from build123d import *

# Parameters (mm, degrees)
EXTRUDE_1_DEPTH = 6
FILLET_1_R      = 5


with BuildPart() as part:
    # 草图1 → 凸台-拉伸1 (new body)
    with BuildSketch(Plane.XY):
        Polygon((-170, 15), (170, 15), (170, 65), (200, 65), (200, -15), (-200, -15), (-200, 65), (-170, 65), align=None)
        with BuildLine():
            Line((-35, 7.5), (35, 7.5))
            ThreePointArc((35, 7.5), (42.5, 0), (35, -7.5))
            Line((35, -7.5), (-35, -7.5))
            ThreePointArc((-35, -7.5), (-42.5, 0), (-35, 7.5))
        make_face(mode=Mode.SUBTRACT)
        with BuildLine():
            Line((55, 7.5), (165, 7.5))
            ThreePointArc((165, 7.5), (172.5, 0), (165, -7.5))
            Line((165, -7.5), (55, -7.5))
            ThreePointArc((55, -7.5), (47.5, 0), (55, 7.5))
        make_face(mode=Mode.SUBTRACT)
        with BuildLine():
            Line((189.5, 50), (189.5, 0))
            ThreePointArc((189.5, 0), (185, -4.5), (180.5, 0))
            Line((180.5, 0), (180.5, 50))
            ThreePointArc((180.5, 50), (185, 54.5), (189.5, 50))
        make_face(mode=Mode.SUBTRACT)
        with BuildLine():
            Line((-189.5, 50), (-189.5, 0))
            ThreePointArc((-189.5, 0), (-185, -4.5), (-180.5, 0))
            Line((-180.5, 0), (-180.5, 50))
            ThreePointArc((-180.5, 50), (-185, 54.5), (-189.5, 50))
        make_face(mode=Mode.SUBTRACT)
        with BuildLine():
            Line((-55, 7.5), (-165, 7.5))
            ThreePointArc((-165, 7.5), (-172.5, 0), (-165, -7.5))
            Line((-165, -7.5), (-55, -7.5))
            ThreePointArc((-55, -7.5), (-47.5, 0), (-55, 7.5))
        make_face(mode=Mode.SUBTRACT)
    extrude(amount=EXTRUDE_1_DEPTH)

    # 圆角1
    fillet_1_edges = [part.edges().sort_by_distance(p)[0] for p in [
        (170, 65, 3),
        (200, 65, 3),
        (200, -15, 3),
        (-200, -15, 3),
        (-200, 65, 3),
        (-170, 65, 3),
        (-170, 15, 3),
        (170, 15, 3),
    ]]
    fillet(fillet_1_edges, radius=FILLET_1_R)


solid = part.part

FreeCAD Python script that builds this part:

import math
import FreeCAD as App
import Part
import Sketcher
from FreeCAD import Vector


def edges_at(feature, points):
    """Names of the edges that pass closest to the given points."""
    edges = feature.Shape.Edges
    near = lambda p: min(range(len(edges)), key=lambda i: edges[i].distToShape(Part.Vertex(*p))[0])
    return sorted({f"Edge{near(p) + 1}" for p in points})

doc = App.newDocument("Part")
body = doc.addObject("PartDesign::Body", "Body")

# Sketch on XY plane
sketch1 = body.newObject("Sketcher::SketchObject", "Sketch")
sketch1.AttachmentSupport = (doc.getObject("XY_Plane"), [""])
sketch1.MapMode = "FlatFace"
sketch1.addGeometry([
    Part.LineSegment(Vector(170, 15, 0), Vector(-170, 15, 0)),  # 0
    Part.LineSegment(Vector(-170, 15, 0), Vector(-170, 65, 0)),  # 1
    Part.LineSegment(Vector(-170, 65, 0), Vector(-200, 65, 0)),  # 2
    Part.LineSegment(Vector(-200, 65, 0), Vector(-200, -15, 0)),  # 3
    Part.LineSegment(Vector(-200, -15, 0), Vector(200, -15, 0)),  # 4
    Part.LineSegment(Vector(200, -15, 0), Vector(200, 65, 0)),  # 5
    Part.LineSegment(Vector(200, 65, 0), Vector(170, 65, 0)),  # 6
    Part.LineSegment(Vector(170, 65, 0), Vector(170, 15, 0)),  # 7
    Part.LineSegment(Vector(55, 7.5, 0), Vector(165, 7.5, 0)),  # 8
    Part.ArcOfCircle(Part.Circle(Vector(165, 0, 0), Vector(0, 0, 1), 7.5), math.radians(-90), math.radians(90)),  # 9
    Part.LineSegment(Vector(165, -7.5, 0), Vector(55, -7.5, 0)),  # 10
    Part.ArcOfCircle(Part.Circle(Vector(55, 0, 0), Vector(0, 0, 1), 7.5), math.radians(90), math.radians(270)),  # 11
    Part.LineSegment(Vector(-35, 7.5, 0), Vector(35, 7.5, 0)),  # 12
    Part.ArcOfCircle(Part.Circle(Vector(35, 0, 0), Vector(0, 0, 1), 7.5), math.radians(-90), math.radians(90)),  # 13
    Part.LineSegment(Vector(35, -7.5, 0), Vector(-35, -7.5, 0)),  # 14
    Part.ArcOfCircle(Part.Circle(Vector(-35, 0, 0), Vector(0, 0, 1), 7.5), math.radians(90), math.radians(270)),  # 15
    Part.ArcOfCircle(Part.Circle(Vector(-55, 0, 0), Vector(0, 0, 1), 7.5), math.radians(-90), math.radians(90)),  # 16
    Part.LineSegment(Vector(-55, -7.5, 0), Vector(-165, -7.5, 0)),  # 17
    Part.ArcOfCircle(Part.Circle(Vector(-165, 0, 0), Vector(0, 0, 1), 7.5), math.radians(90), math.radians(270)),  # 18
    Part.LineSegment(Vector(-165, 7.5, 0), Vector(-55, 7.5, 0)),  # 19
    Part.LineSegment(Vector(189.5, 50, 0), Vector(189.5, 0, 0)),  # 20
    Part.ArcOfCircle(Part.Circle(Vector(185, 0, 0), Vector(0, 0, 1), 4.5), math.radians(180), math.radians(360)),  # 21
    Part.LineSegment(Vector(180.5, 0, 0), Vector(180.5, 50, 0)),  # 22
    Part.ArcOfCircle(Part.Circle(Vector(185, 50, 0), Vector(0, 0, 1), 4.5), math.radians(0), math.radians(180)),  # 23
    Part.ArcOfCircle(Part.Circle(Vector(-185, 50, 0), Vector(0, 0, 1), 4.5), math.radians(0), math.radians(180)),  # 24
    Part.LineSegment(Vector(-180.5, 50, 0), Vector(-180.5, 0, 0)),  # 25
    Part.ArcOfCircle(Part.Circle(Vector(-185, 0, 0), Vector(0, 0, 1), 4.5), math.radians(180), math.radians(360)),  # 26
    Part.LineSegment(Vector(-189.5, 0, 0), Vector(-189.5, 50, 0)),  # 27
], False)
sketch1.addConstraint([
    Sketcher.Constraint("Coincident", 0, 2, 1, 1),
    Sketcher.Constraint("Coincident", 1, 2, 2, 1),
    Sketcher.Constraint("Coincident", 2, 2, 3, 1),
    Sketcher.Constraint("Coincident", 3, 2, 4, 1),
    Sketcher.Constraint("Coincident", 4, 2, 5, 1),
    Sketcher.Constraint("Coincident", 5, 2, 6, 1),
    Sketcher.Constraint("Coincident", 6, 2, 7, 1),
    Sketcher.Constraint("Coincident", 7, 2, 0, 1),
    Sketcher.Constraint("Tangent", 8, 2, 9, 2),
    Sketcher.Constraint("Tangent", 9, 1, 10, 1),
    Sketcher.Constraint("Tangent", 10, 2, 11, 2),
    Sketcher.Constraint("Tangent", 11, 1, 8, 1),
    Sketcher.Constraint("Tangent", 12, 2, 13, 2),
    Sketcher.Constraint("Tangent", 13, 1, 14, 1),
    Sketcher.Constraint("Tangent", 14, 2, 15, 2),
    Sketcher.Constraint("Tangent", 15, 1, 12, 1),
    Sketcher.Constraint("Tangent", 16, 1, 17, 1),
    Sketcher.Constraint("Tangent", 17, 2, 18, 2),
    Sketcher.Constraint("Tangent", 18, 1, 19, 1),
    Sketcher.Constraint("Tangent", 19, 2, 16, 2),
    Sketcher.Constraint("Tangent", 20, 2, 21, 2),
    Sketcher.Constraint("Tangent", 21, 1, 22, 1),
    Sketcher.Constraint("Tangent", 22, 2, 23, 2),
    Sketcher.Constraint("Tangent", 23, 1, 20, 1),
    Sketcher.Constraint("Tangent", 24, 1, 25, 1),
    Sketcher.Constraint("Tangent", 25, 2, 26, 2),
    Sketcher.Constraint("Tangent", 26, 1, 27, 1),
    Sketcher.Constraint("Tangent", 27, 2, 24, 2),
    Sketcher.Constraint("Horizontal", 0),
    Sketcher.Constraint("Vertical", 1),
    Sketcher.Constraint("Horizontal", 2),
    Sketcher.Constraint("Vertical", 3),
    Sketcher.Constraint("Horizontal", 4),
    Sketcher.Constraint("Vertical", 5),
    Sketcher.Constraint("Horizontal", 6),
    Sketcher.Constraint("Vertical", 7),
    Sketcher.Constraint("Horizontal", 8),
    Sketcher.Constraint("Horizontal", 10),
    Sketcher.Constraint("Horizontal", 12),
    Sketcher.Constraint("Horizontal", 14),
    Sketcher.Constraint("Horizontal", 17),
    Sketcher.Constraint("Horizontal", 19),
    Sketcher.Constraint("Vertical", 20),
    Sketcher.Constraint("Vertical", 22),
    Sketcher.Constraint("Vertical", 25),
    Sketcher.Constraint("Vertical", 27),
    Sketcher.Constraint("Equal", 11, 13),
    Sketcher.Constraint("Equal", 15, 16),
    Sketcher.Constraint("Equal", 23, 24),
    Sketcher.Constraint("Symmetric", 13, 3, 15, 3, -1, 1),
    Sketcher.Constraint("Symmetric", 11, 3, 16, 3, -1, 1),
    Sketcher.Constraint("Symmetric", 21, 3, 26, 3, -1, 1),
    Sketcher.Constraint("Symmetric", 9, 3, 18, 3, -2),
    Sketcher.Constraint("Symmetric", 2, 2, 5, 2, -2),
    Sketcher.Constraint("PointOnObject", 21, 3, -1),
    Sketcher.Constraint("Horizontal", 23, 3, 24, 3),
    Sketcher.Constraint("Equal", 2, 6),
    Sketcher.Constraint("Equal", 7, 20),
    Sketcher.Constraint("Radius", 9, 7.5),
    Sketcher.Constraint("Radius", 21, 4.5),
    Sketcher.Constraint("DistanceX", 0, 2, 0, 1, 340.0),
    Sketcher.Constraint("DistanceX", 2, 2, 2, 1, 30.0),
    Sketcher.Constraint("DistanceX", 8, 1, 8, 2, 110.0),
    Sketcher.Constraint("DistanceX", 12, 1, 12, 2, 70.0),
    Sketcher.Constraint("DistanceY", 1, 1, 1, 2, 50.0),
    Sketcher.Constraint("DistanceY", 3, 2, 3, 1, 80.0),
    Sketcher.Constraint("DistanceX", -1, 1, 9, 3, 165.0),
    Sketcher.Constraint("DistanceX", -1, 1, 21, 3, 185.0),
    Sketcher.Constraint("DistanceY", -1, 1, 0, 2, 15.0),
])
pad1 = body.newObject("PartDesign::Pad", "Pad")
pad1.Profile = sketch1
pad1.Length = 6
doc.recompute()

fillet = body.newObject("PartDesign::Fillet", "Fillet")
fillet.Base = (pad1, edges_at(pad1, [
    (170, 65, 3),
    (200, 65, 3),
    (200, -15, 3),
    (-200, -15, 3),
    (-200, 65, 3),
    (-170, 65, 3),
    (-170, 15, 3),
    (170, 15, 3),
]))
fillet.Radius = 5

doc.recompute()
